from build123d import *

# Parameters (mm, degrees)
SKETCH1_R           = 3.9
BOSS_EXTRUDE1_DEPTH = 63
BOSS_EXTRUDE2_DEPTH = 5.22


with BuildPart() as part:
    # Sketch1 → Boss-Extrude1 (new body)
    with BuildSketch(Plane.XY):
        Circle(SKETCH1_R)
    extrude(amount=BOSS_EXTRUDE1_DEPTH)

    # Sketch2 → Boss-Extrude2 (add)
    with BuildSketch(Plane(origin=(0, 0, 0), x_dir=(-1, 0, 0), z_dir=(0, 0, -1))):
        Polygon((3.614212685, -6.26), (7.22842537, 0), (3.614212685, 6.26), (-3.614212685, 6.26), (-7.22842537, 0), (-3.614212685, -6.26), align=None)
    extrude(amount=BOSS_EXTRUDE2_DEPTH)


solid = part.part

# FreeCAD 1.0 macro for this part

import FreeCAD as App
import Part
import Sketcher
from FreeCAD import Vector
Q = App.Units.Quantity

doc = App.newDocument("Part")
body = doc.addObject("PartDesign::Body", "Body")

sketch1 = body.newObject("Sketcher::SketchObject", "Sketch")
sketch1.AttachmentSupport = (doc.getObject("XY_Plane"), [""])
sketch1.MapMode = "FlatFace"
sketch1.addGeometry(Part.Circle(Vector(0, 0, 0), Vector(0, 0, 1), 3.9), False)
sketch1.addConstraint([
    Sketcher.Constraint("Coincident", 0, 3, -1, 1),
    Sketcher.Constraint("Diameter", 0, 7.8),
])
pad1 = body.newObject("PartDesign::Pad", "Pad")
pad1.Profile = sketch1
pad1.Length = 63

sketch2 = body.newObject("Sketcher::SketchObject", "Sketch001")
sketch2.AttachmentSupport = (doc.getObject("XY_Plane"), [""])
sketch2.MapMode = "FlatFace"
sketch2.addGeometry([
    Part.LineSegment(Vector(-3.614213, -6.26, 0), Vector(-7.228425, 0, 0)),
    Part.LineSegment(Vector(-7.228425, 0, 0), Vector(-3.614213, 6.26, 0)),
    Part.LineSegment(Vector(-3.614213, 6.26, 0), Vector(3.614213, 6.26, 0)),
    Part.LineSegment(Vector(3.614213, 6.26, 0), Vector(7.228425, 0, 0)),
    Part.LineSegment(Vector(7.228425, 0, 0), Vector(3.614213, -6.26, 0)),
    Part.LineSegment(Vector(3.614213, -6.26, 0), Vector(-3.614213, -6.26, 0)),
], False)
sketch2.addConstraint([
    Sketcher.Constraint("Coincident", 0, 2, 1, 1),
    Sketcher.Constraint("Coincident", 1, 2, 2, 1),
    Sketcher.Constraint("Coincident", 2, 2, 3, 1),
    Sketcher.Constraint("Coincident", 3, 2, 4, 1),
    Sketcher.Constraint("Coincident", 4, 2, 5, 1),
    Sketcher.Constraint("Coincident", 5, 2, 0, 1),
    Sketcher.Constraint("Horizontal", 2),
    Sketcher.Constraint("Horizontal", 5),
    Sketcher.Constraint("Symmetric", 0, 2, 3, 2, -1, 1),
    Sketcher.Constraint("Symmetric", 1, 2, 4, 2, -1, 1),
    Sketcher.Constraint("PointOnObject", 0, 2, -1),
    Sketcher.Constraint("Parallel", 0, 3),
    Sketcher.Constraint("Vertical", 2, 2, 4, 2),
    Sketcher.Constraint("Angle", 0, Q("120 deg")),
    Sketcher.Constraint("DistanceY", -1, 1, 1, 2, 6.26),
    Sketcher.Constraint("DistanceX", 2, 1, 2, 2, 7.228425),
])
pad2 = body.newObject("PartDesign::Pad", "Pad001")
pad2.Profile = sketch2
pad2.Length = 5.22
pad2.Reversed = True

doc.recompute()
